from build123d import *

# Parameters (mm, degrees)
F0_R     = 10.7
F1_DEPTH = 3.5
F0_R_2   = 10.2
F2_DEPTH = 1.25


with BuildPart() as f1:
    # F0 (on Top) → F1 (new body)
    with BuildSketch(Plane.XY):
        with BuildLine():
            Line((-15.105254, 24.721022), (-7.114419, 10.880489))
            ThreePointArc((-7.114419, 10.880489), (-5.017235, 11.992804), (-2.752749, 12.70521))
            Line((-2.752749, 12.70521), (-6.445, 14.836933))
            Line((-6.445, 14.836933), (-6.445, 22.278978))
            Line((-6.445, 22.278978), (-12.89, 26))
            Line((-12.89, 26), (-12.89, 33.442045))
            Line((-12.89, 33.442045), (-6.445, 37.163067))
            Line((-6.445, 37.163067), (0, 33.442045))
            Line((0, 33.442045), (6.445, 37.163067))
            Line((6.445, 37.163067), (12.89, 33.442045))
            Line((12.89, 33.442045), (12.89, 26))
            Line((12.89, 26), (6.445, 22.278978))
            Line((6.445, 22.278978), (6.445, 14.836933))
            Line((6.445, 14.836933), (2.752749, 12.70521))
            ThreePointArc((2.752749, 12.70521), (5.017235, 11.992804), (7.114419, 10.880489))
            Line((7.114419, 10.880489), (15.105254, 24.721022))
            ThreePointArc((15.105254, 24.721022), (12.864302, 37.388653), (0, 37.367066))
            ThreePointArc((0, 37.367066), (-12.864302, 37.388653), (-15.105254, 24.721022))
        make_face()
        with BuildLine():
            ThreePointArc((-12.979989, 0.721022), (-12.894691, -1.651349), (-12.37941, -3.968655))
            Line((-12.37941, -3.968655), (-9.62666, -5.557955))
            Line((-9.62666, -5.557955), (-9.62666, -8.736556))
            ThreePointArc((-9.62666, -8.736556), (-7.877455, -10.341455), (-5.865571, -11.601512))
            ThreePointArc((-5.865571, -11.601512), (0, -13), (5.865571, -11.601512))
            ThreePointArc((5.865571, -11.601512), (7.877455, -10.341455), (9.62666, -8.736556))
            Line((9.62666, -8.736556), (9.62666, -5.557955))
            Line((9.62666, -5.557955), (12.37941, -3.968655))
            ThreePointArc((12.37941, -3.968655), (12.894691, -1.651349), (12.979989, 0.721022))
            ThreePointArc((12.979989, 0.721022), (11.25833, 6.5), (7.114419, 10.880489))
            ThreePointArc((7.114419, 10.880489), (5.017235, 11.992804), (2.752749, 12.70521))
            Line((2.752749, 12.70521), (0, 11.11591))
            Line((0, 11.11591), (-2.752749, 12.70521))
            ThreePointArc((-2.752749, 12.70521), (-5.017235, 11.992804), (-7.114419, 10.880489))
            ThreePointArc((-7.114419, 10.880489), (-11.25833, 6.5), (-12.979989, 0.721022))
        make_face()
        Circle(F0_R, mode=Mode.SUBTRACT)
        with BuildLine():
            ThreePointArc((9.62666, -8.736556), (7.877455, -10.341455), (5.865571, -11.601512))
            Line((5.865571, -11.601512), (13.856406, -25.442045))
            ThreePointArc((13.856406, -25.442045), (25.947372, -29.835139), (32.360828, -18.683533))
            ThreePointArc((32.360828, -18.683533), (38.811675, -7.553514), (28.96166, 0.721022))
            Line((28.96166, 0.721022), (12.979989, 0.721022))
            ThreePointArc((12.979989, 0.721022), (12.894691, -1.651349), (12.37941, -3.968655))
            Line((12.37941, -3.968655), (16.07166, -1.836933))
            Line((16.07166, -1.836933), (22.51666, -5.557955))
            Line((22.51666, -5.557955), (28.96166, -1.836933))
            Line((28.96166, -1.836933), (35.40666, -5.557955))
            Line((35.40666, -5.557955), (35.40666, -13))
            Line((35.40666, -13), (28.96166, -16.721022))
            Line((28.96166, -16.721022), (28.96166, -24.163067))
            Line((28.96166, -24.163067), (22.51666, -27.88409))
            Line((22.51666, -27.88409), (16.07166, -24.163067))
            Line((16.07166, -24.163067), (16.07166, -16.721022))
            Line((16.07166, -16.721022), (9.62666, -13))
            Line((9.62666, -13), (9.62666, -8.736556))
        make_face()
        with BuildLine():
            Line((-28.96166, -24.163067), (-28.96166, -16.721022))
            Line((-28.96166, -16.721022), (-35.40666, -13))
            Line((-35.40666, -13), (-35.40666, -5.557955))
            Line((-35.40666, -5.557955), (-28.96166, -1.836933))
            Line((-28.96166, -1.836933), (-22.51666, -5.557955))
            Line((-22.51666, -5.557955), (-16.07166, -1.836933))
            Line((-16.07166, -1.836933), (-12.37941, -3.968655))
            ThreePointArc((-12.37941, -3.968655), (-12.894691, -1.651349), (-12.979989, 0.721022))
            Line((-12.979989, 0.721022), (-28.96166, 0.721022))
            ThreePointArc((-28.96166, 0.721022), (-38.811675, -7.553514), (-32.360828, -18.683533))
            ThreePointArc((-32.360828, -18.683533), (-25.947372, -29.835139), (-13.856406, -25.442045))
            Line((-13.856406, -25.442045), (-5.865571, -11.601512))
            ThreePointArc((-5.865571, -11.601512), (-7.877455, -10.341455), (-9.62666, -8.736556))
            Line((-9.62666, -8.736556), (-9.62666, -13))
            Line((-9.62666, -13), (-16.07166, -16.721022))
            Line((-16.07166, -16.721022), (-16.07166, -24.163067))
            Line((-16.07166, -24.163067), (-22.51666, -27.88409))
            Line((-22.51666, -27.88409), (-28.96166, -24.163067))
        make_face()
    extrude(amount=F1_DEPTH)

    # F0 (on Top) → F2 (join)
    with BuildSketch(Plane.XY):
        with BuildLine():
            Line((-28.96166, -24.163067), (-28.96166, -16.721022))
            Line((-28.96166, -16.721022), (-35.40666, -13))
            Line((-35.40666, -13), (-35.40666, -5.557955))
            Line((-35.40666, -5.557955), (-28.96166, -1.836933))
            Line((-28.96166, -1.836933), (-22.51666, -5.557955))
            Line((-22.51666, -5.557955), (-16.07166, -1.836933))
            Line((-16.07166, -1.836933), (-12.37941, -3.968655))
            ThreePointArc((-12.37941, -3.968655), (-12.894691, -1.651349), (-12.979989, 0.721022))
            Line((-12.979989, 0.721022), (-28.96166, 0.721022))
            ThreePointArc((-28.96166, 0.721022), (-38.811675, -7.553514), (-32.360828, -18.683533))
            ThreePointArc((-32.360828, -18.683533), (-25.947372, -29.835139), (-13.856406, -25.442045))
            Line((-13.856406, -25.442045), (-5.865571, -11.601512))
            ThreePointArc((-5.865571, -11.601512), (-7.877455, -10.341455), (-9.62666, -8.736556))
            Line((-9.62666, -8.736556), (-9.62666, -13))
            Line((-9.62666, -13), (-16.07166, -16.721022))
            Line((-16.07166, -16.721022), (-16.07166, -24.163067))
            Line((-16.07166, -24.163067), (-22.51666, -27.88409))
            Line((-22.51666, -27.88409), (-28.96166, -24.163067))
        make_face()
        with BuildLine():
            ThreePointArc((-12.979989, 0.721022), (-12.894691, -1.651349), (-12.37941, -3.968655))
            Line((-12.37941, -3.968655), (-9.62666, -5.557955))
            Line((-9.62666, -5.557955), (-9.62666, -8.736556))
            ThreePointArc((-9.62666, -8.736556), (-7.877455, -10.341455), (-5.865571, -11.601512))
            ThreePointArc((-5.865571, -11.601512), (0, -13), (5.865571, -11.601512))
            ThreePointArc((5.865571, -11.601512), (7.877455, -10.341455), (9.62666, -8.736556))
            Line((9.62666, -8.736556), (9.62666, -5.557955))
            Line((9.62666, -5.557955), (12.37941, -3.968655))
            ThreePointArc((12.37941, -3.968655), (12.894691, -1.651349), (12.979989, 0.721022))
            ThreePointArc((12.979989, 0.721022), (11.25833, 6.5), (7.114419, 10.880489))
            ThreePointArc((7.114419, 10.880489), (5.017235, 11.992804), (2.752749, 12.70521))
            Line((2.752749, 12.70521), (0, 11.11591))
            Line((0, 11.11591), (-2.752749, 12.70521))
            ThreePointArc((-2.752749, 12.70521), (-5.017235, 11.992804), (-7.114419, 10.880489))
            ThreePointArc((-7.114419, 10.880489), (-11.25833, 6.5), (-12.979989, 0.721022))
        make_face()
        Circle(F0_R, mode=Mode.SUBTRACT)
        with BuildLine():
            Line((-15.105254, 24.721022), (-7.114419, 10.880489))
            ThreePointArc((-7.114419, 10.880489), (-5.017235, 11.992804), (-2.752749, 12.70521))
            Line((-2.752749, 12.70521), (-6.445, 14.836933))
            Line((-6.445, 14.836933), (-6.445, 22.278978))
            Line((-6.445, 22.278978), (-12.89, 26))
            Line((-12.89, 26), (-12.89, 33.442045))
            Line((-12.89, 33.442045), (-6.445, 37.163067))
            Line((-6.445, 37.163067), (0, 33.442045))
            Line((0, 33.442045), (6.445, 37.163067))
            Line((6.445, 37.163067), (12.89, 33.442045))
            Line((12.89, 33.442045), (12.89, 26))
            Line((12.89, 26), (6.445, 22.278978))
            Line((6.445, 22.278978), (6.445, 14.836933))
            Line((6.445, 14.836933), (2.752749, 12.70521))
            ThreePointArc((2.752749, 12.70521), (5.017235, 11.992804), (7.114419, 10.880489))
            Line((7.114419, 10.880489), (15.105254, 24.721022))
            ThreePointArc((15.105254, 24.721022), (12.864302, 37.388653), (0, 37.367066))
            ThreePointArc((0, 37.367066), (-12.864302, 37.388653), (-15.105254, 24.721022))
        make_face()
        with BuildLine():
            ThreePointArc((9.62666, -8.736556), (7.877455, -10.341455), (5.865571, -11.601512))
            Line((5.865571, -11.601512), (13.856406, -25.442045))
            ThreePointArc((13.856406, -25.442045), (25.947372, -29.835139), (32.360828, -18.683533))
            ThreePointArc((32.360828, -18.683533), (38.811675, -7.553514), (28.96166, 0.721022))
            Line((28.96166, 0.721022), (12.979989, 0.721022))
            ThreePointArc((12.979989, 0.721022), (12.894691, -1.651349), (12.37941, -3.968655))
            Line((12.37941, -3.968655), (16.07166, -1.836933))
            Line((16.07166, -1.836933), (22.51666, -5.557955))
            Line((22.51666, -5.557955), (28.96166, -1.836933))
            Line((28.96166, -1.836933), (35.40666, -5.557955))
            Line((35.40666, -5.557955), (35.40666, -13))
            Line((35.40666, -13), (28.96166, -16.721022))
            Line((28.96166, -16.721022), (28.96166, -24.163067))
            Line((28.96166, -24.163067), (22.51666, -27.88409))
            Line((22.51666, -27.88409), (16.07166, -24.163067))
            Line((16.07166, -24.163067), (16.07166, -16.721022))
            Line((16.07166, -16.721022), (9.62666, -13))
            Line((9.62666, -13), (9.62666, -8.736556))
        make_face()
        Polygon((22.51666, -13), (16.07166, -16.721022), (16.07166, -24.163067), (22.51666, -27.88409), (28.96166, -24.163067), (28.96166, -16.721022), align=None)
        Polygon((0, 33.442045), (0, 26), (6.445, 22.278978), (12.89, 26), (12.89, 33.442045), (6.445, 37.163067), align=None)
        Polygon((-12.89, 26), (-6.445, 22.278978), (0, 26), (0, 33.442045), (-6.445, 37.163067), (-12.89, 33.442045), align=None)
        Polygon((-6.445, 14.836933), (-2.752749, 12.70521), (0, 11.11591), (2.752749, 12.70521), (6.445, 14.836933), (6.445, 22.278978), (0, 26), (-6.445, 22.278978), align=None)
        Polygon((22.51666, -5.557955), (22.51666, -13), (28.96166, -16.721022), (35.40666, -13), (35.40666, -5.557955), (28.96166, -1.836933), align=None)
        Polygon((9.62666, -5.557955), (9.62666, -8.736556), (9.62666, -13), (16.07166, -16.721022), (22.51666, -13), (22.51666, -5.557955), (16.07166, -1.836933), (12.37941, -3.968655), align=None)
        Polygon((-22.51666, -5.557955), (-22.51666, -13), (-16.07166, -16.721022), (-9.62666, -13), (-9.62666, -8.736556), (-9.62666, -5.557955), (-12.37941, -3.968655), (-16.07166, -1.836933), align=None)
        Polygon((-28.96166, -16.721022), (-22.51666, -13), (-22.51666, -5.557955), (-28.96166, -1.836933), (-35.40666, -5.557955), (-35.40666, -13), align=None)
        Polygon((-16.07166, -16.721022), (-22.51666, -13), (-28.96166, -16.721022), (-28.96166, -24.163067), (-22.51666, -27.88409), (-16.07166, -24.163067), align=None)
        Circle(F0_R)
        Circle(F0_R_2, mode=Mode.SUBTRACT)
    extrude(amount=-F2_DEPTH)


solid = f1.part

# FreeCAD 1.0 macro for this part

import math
import FreeCAD as App
import Part
import Sketcher
Q = App.Units.Quantity


def add_polygon(sketch, points):
    """Adds a closed chain of lines whose ends are joined by coincident constraints."""
    first, n = sketch.GeometryCount, len(points)
    for a, b in zip(points, points[1:] + points[:1]):
        sketch.addGeometry(Part.LineSegment(App.Vector(*a, 0), App.Vector(*b, 0)), False)
    for i in range(n):
        sketch.addConstraint(Sketcher.Constraint("Coincident", first + i, 2, first + (i + 1) % n, 1))

doc = App.newDocument("Part")
body = doc.addObject("PartDesign::Body", "Body")

# Sketch on XY plane
sketch1 = body.newObject("Sketcher::SketchObject", "Sketch")
sketch1.AttachmentSupport = (doc.getObject("XY_Plane"), [""])
sketch1.MapMode = "FlatFace"
sketch1.addGeometry(Part.LineSegment(App.Vector(-15.105254, 24.721022, 0), App.Vector(-7.114419, 10.880489, 0)), False)  # 0
sketch1.addGeometry(Part.ArcOfCircle(Part.Circle(App.Vector(0, 0.000001, 0), App.Vector(0, 0, 1), 12.999999), math.radians(123.179446), math.radians(176.820562)), False)  # 1
sketch1.addGeometry(Part.LineSegment(App.Vector(-12.979989, 0.721022, 0), App.Vector(-28.96166, 0.721022, 0)), False)  # 2
sketch1.addGeometry(Part.ArcOfCircle(Part.Circle(App.Vector(-28.961661, -9.278978, 0), App.Vector(0, 0, 1), 10), math.radians(89.999992), math.radians(250.128202)), False)  # 3
sketch1.addGeometry(Part.ArcOfCircle(Part.Circle(App.Vector(-22.51666, -20.442045, 0), App.Vector(0, 0, 1), 10), math.radians(169.871806), math.radians(329.999999)), False)  # 4
sketch1.addGeometry(Part.LineSegment(App.Vector(-13.856406, -25.442045, 0), App.Vector(-5.865571, -11.601512, 0)), False)  # 5
sketch1.addGeometry(Part.ArcOfCircle(Part.Circle(App.Vector(0, 0.000001, 0), App.Vector(0, 0, 1), 13.000001), math.radians(-116.820555), math.radians(-63.179445)), False)  # 6
sketch1.addGeometry(Part.LineSegment(App.Vector(5.865571, -11.601512, 0), App.Vector(13.856406, -25.442045, 0)), False)  # 7
sketch1.addGeometry(Part.ArcOfCircle(Part.Circle(App.Vector(22.51666, -20.442045, 0), App.Vector(0, 0, 1), 10), math.radians(-149.999999), math.radians(10.128194)), False)  # 8
sketch1.addGeometry(Part.ArcOfCircle(Part.Circle(App.Vector(28.961661, -9.278978, 0), App.Vector(0, 0, 1), 10), math.radians(-70.128202), math.radians(90.000008)), False)  # 9
sketch1.addGeometry(Part.LineSegment(App.Vector(28.96166, 0.721022, 0), App.Vector(12.979989, 0.721022, 0)), False)  # 10
sketch1.addGeometry(Part.ArcOfCircle(Part.Circle(App.Vector(0, 0.000001, 0), App.Vector(0, 0, 1), 12.999999), math.radians(3.179438), math.radians(56.820554)), False)  # 11
sketch1.addGeometry(Part.LineSegment(App.Vector(7.114419, 10.880489, 0), App.Vector(15.105254, 24.721022, 0)), False)  # 12
sketch1.addGeometry(Part.ArcOfCircle(Part.Circle(App.Vector(6.445, 29.721022, 0), App.Vector(0, 0, 1), 10), math.radians(-29.999999), math.radians(130.128193)), False)  # 13
sketch1.addGeometry(Part.ArcOfCircle(Part.Circle(App.Vector(-6.445, 29.721022, 0), App.Vector(0, 0, 1), 10), math.radians(49.871807), math.radians(209.999999)), False)  # 14
add_polygon(sketch1, [(-12.37941, -3.968655), (-9.62666, -5.557955), (-9.62666, -13), (-16.07166, -16.721022), (-16.07166, -24.163067), (-22.51666, -27.88409), (-28.96166, -24.163067), (-28.96166, -16.721022), (-35.40666, -13), (-35.40666, -5.557955), (-28.96166, -1.836933), (-22.51666, -5.557955), (-16.07166, -1.836933)])  # lines 15-27
add_polygon(sketch1, [(9.62666, -5.557955), (12.37941, -3.968655), (16.07166, -1.836933), (22.51666, -5.557955), (28.96166, -1.836933), (35.40666, -5.557955), (35.40666, -13), (28.96166, -16.721022), (28.96166, -24.163067), (22.51666, -27.88409), (16.07166, -24.163067), (16.07166, -16.721022), (9.62666, -13)])  # lines 28-40
sketch1.addGeometry(Part.Circle(App.Vector(0, 0, 0), App.Vector(0, 0, 1), 10.7), False)  # 41
add_polygon(sketch1, [(-2.752749, 12.70521), (-6.445, 14.836933), (-6.445, 22.278978), (-12.89, 26), (-12.89, 33.442045), (-6.445, 37.163067), (0, 33.442045), (6.445, 37.163067), (12.89, 33.442045), (12.89, 26), (6.445, 22.278978), (6.445, 14.836933), (2.752749, 12.70521), (0, 11.11591)])  # lines 42-55
sketch1.addConstraint([
    Sketcher.Constraint("Coincident", 0, 2, 1, 1),
    Sketcher.Constraint("Coincident", 1, 2, 2, 1),
    Sketcher.Constraint("Coincident", 2, 2, 3, 1),
    Sketcher.Constraint("Coincident", 3, 2, 4, 1),
    Sketcher.Constraint("Coincident", 4, 2, 5, 1),
    Sketcher.Constraint("Coincident", 5, 2, 6, 1),
    Sketcher.Constraint("Coincident", 6, 2, 7, 1),
    Sketcher.Constraint("Coincident", 7, 2, 8, 1),
    Sketcher.Constraint("Coincident", 8, 2, 9, 1),
    Sketcher.Constraint("Coincident", 9, 2, 10, 1),
    Sketcher.Constraint("Coincident", 10, 2, 11, 1),
    Sketcher.Constraint("Coincident", 11, 2, 12, 1),
    Sketcher.Constraint("Coincident", 12, 2, 13, 1),
    Sketcher.Constraint("Coincident", 13, 2, 14, 1),
    Sketcher.Constraint("Coincident", 14, 2, 0, 1),
    Sketcher.Constraint("Horizontal", 2),
    Sketcher.Constraint("Horizontal", 10),
    Sketcher.Constraint("Vertical", 16),
    Sketcher.Constraint("Vertical", 18),
    Sketcher.Constraint("Vertical", 21),
    Sketcher.Constraint("Vertical", 23),
    Sketcher.Constraint("Vertical", 33),
    Sketcher.Constraint("Vertical", 35),
    Sketcher.Constraint("Vertical", 38),
    Sketcher.Constraint("Vertical", 40),
    Sketcher.Constraint("Vertical", 43),
    Sketcher.Constraint("Vertical", 45),
    Sketcher.Constraint("Vertical", 50),
    Sketcher.Constraint("Vertical", 52),
    Sketcher.Constraint("Coincident", 1, 3, -1, 1),
    Sketcher.Constraint("Coincident", 6, 3, -1, 1),
    Sketcher.Constraint("Coincident", 11, 3, -1, 1),
    Sketcher.Constraint("Coincident", 41, 3, -1, 1),
    Sketcher.Constraint("PointOnObject", 13, 2, -2),
    Sketcher.Constraint("PointOnObject", 47, 2, -2),
    Sketcher.Constraint("PointOnObject", 54, 2, -2),
    Sketcher.Constraint("Radius", 1, 12.999999),
    Sketcher.Constraint("Radius", 3, 10.0),
    Sketcher.Constraint("Radius", 4, 10.0),
    Sketcher.Constraint("Radius", 6, 13.000001),
    Sketcher.Constraint("Radius", 8, 10.0),
    Sketcher.Constraint("Radius", 9, 10.0),
    Sketcher.Constraint("Radius", 11, 12.999999),
    Sketcher.Constraint("Radius", 13, 10.0),
    Sketcher.Constraint("Radius", 14, 10.0),
    Sketcher.Constraint("Diameter", 41, 21.4),
    Sketcher.Constraint("DistanceY", 16, 2, -1, 1, 13.0),
    Sketcher.Constraint("DistanceY", 22, 2, -1, 1, 13.0),
    Sketcher.Constraint("DistanceY", 33, 2, -1, 1, 13.0),
    Sketcher.Constraint("DistanceY", 39, 2, -1, 1, 13.0),
    Sketcher.Constraint("DistanceY", -1, 1, 44, 2, 26.0),
    Sketcher.Constraint("DistanceY", -1, 1, 50, 2, 26.0),
    Sketcher.Constraint("DistanceX", 44, 2, -1, 1, 12.89),
    Sketcher.Constraint("DistanceX", -1, 1, 49, 2, 12.89),
    Sketcher.Constraint("DistanceX", -1, 1, 13, 3, 6.445),
    Sketcher.Constraint("DistanceX", 14, 3, -1, 1, 6.445),
    Sketcher.Constraint("DistanceX", 42, 2, -1, 1, 6.445),
    Sketcher.Constraint("DistanceX", 46, 2, -1, 1, 6.445),
    Sketcher.Constraint("DistanceX", -1, 1, 48, 2, 6.445),
    Sketcher.Constraint("DistanceX", -1, 1, 51, 2, 6.445),
    Sketcher.Constraint("Distance", 15, 3.178601),
    Sketcher.Constraint("Distance", 28, 3.178601),
    Sketcher.Constraint("Distance", 54, 3.178601),
    Sketcher.Constraint("Distance", 55, 3.178601),
    Sketcher.Constraint("DistanceX", 2, 2, 2, 1, 15.981671),
    Sketcher.Constraint("DistanceX", 10, 2, 10, 1, 15.981671),
    Sketcher.Constraint("Distance", 0, 15.981671),
    Sketcher.Constraint("Distance", 5, 15.981671),
    Sketcher.Constraint("Distance", 7, 15.981671),
    Sketcher.Constraint("Distance", 12, 15.981671),
    Sketcher.Constraint("DistanceY", 16, 2, 16, 1, 7.442045),
    Sketcher.Constraint("DistanceY", 18, 2, 18, 1, 7.442045),
    Sketcher.Constraint("DistanceY", 21, 1, 21, 2, 7.442045),
    Sketcher.Constraint("DistanceY", 23, 1, 23, 2, 7.442045),
    Sketcher.Constraint("DistanceY", 33, 2, 33, 1, 7.442045),
    Sketcher.Constraint("DistanceY", 35, 2, 35, 1, 7.442045),
    Sketcher.Constraint("DistanceY", 38, 1, 38, 2, 7.442045),
    Sketcher.Constraint("DistanceY", 40, 1, 40, 2, 7.442045),
    Sketcher.Constraint("DistanceY", 43, 1, 43, 2, 7.442045),
    Sketcher.Constraint("DistanceY", 45, 1, 45, 2, 7.442045),
    Sketcher.Constraint("DistanceY", 50, 2, 50, 1, 7.442045),
    Sketcher.Constraint("DistanceY", 52, 2, 52, 1, 7.442045),
    Sketcher.Constraint("DistanceX", 3, 3, -1, 1, 28.961661),
    Sketcher.Constraint("DistanceX", 4, 3, -1, 1, 22.51666),
    Sketcher.Constraint("DistanceX", -1, 1, 8, 3, 22.51666),
    Sketcher.Constraint("DistanceX", -1, 1, 9, 3, 28.961661),
    Sketcher.Constraint("DistanceX", 0, 2, -1, 1, 7.114419),
    Sketcher.Constraint("DistanceX", 1, 2, -1, 1, 12.979989),
    Sketcher.Constraint("DistanceX", 5, 2, -1, 1, 5.865571),
    Sketcher.Constraint("DistanceX", -1, 1, 6, 2, 5.865571),
    Sketcher.Constraint("DistanceX", -1, 1, 9, 2, 28.96166),
    Sketcher.Constraint("DistanceX", -1, 1, 11, 2, 7.114419),
    Sketcher.Constraint("DistanceY", -1, 1, 14, 2, 24.721022),
    Sketcher.Constraint("DistanceX", 15, 2, -1, 1, 9.62666),
    Sketcher.Constraint("DistanceX", 17, 2, -1, 1, 16.07166),
    Sketcher.Constraint("DistanceX", 19, 2, -1, 1, 22.51666),
    Sketcher.Constraint("DistanceY", 19, 2, -1, 1, 27.88409),
    Sketcher.Constraint("DistanceX", 20, 2, -1, 1, 28.96166),
    Sketcher.Constraint("DistanceX", 22, 2, -1, 1, 35.40666),
    Sketcher.Constraint("DistanceX", 24, 2, -1, 1, 28.96166),
    Sketcher.Constraint("DistanceX", 25, 2, -1, 1, 22.51666),
    Sketcher.Constraint("DistanceX", 26, 2, -1, 1, 16.07166),
    Sketcher.Constraint("DistanceX", 27, 2, -1, 1, 12.37941),
    Sketcher.Constraint("DistanceX", -1, 1, 28, 2, 12.37941),
    Sketcher.Constraint("DistanceX", -1, 1, 29, 2, 16.07166),
    Sketcher.Constraint("DistanceX", -1, 1, 30, 2, 22.51666),
    Sketcher.Constraint("DistanceX", -1, 1, 31, 2, 28.96166),
    Sketcher.Constraint("DistanceX", -1, 1, 32, 2, 35.40666),
    Sketcher.Constraint("DistanceX", -1, 1, 34, 2, 28.96166),
    Sketcher.Constraint("DistanceX", -1, 1, 36, 2, 22.51666),
    Sketcher.Constraint("DistanceY", 36, 2, -1, 1, 27.88409),
    Sketcher.Constraint("DistanceX", -1, 1, 37, 2, 16.07166),
    Sketcher.Constraint("DistanceX", -1, 1, 39, 2, 9.62666),
    Sketcher.Constraint("DistanceX", -1, 1, 53, 2, 2.752749),
    Sketcher.Constraint("DistanceY", -1, 1, 53, 2, 12.70521),
    Sketcher.Constraint("DistanceX", 55, 2, -1, 1, 2.752749),
    Sketcher.Constraint("Distance", 17, 7.442045),
    Sketcher.Constraint("Distance", 20, 7.442045),
    Sketcher.Constraint("Distance", 24, 7.442045),
    Sketcher.Constraint("Distance", 25, 7.442045),
    Sketcher.Constraint("Distance", 26, 7.442045),
    Sketcher.Constraint("Distance", 29, 4.263443),
    Sketcher.Constraint("Distance", 30, 7.442045),
    Sketcher.Constraint("Distance", 31, 7.442045),
    Sketcher.Constraint("Distance", 34, 7.442045),
    Sketcher.Constraint("Distance", 37, 7.442045),
    Sketcher.Constraint("Distance", 42, 4.263445),
    Sketcher.Constraint("Distance", 46, 7.442045),
    Sketcher.Constraint("Distance", 47, 7.442045),
    Sketcher.Constraint("Distance", 48, 7.442045),
    Sketcher.Constraint("Distance", 51, 7.442045),
    Sketcher.Constraint("DistanceY", 4, 3, -1, 1, 20.442045),
    Sketcher.Constraint("DistanceY", 8, 3, -1, 1, 20.442045),
])
pad1 = body.newObject("PartDesign::Pad", "Pad")
pad1.Profile = sketch1
pad1.Length = 3.5

# Sketch on XY plane
sketch2 = body.newObject("Sketcher::SketchObject", "Sketch001")
sketch2.AttachmentSupport = (doc.getObject("XY_Plane"), [""])
sketch2.MapMode = "FlatFace"
sketch2.addGeometry([
    Part.LineSegment(App.Vector(-12.979989, 0.721022, 0), App.Vector(-28.96166, 0.721022, 0)),  # 0
    Part.ArcOfCircle(Part.Circle(App.Vector(-28.961661, -9.278978, 0), App.Vector(0, 0, 1), 10), math.radians(89.999992), math.radians(250.128202)),  # 1
    Part.ArcOfCircle(Part.Circle(App.Vector(-22.51666, -20.442045, 0), App.Vector(0, 0, 1), 10), math.radians(169.871806), math.radians(329.999999)),  # 2
    Part.LineSegment(App.Vector(-13.856406, -25.442045, 0), App.Vector(-5.865571, -11.601512, 0)),  # 3
    Part.ArcOfCircle(Part.Circle(App.Vector(0, 0.000001, 0), App.Vector(0, 0, 1), 13.000001), math.radians(-116.820555), math.radians(-63.179445)),  # 4
    Part.LineSegment(App.Vector(5.865571, -11.601512, 0), App.Vector(13.856406, -25.442045, 0)),  # 5
    Part.ArcOfCircle(Part.Circle(App.Vector(22.51666, -20.442045, 0), App.Vector(0, 0, 1), 10), math.radians(-149.999999), math.radians(10.128194)),  # 6
    Part.ArcOfCircle(Part.Circle(App.Vector(28.961661, -9.278978, 0), App.Vector(0, 0, 1), 10), math.radians(-70.128202), math.radians(90.000008)),  # 7
    Part.LineSegment(App.Vector(28.96166, 0.721022, 0), App.Vector(12.979989, 0.721022, 0)),  # 8
    Part.ArcOfCircle(Part.Circle(App.Vector(0, 0.000001, 0), App.Vector(0, 0, 1), 12.999999), math.radians(3.179438), math.radians(56.820554)),  # 9
    Part.LineSegment(App.Vector(7.114419, 10.880489, 0), App.Vector(15.105254, 24.721022, 0)),  # 10
    Part.ArcOfCircle(Part.Circle(App.Vector(6.445, 29.721022, 0), App.Vector(0, 0, 1), 10), math.radians(-29.999999), math.radians(130.128193)),  # 11
    Part.ArcOfCircle(Part.Circle(App.Vector(-6.445, 29.721022, 0), App.Vector(0, 0, 1), 10), math.radians(49.871807), math.radians(209.999999)),  # 12
    Part.LineSegment(App.Vector(-15.105254, 24.721022, 0), App.Vector(-7.114419, 10.880489, 0)),  # 13
    Part.ArcOfCircle(Part.Circle(App.Vector(0, 0.000001, 0), App.Vector(0, 0, 1), 12.999999), math.radians(123.179446), math.radians(176.820562)),  # 14
    Part.Circle(App.Vector(0, 0, 0), App.Vector(0, 0, 1), 10.2),  # 15
], False)
sketch2.addConstraint([
    Sketcher.Constraint("Tangent", 0, 2, 1, 1),
    Sketcher.Constraint("Coincident", 1, 2, 2, 1),
    Sketcher.Constraint("Tangent", 2, 2, 3, 1),
    Sketcher.Constraint("Coincident", 3, 2, 4, 1),
    Sketcher.Constraint("Coincident", 4, 2, 5, 1),
    Sketcher.Constraint("Tangent", 5, 2, 6, 1),
    Sketcher.Constraint("Coincident", 6, 2, 7, 1),
    Sketcher.Constraint("Tangent", 7, 2, 8, 1),
    Sketcher.Constraint("Coincident", 8, 2, 9, 1),
    Sketcher.Constraint("Coincident", 9, 2, 10, 1),
    Sketcher.Constraint("Tangent", 10, 2, 11, 1),
    Sketcher.Constraint("Coincident", 11, 2, 12, 1),
    Sketcher.Constraint("Tangent", 12, 2, 13, 1),
    Sketcher.Constraint("Coincident", 13, 2, 14, 1),
    Sketcher.Constraint("Coincident", 14, 2, 0, 1),
    Sketcher.Constraint("Horizontal", 0),
    Sketcher.Constraint("Horizontal", 8),
    Sketcher.Constraint("Coincident", 4, 3, -1, 1),
    Sketcher.Constraint("Coincident", 9, 3, -1, 1),
    Sketcher.Constraint("Coincident", 14, 3, -1, 1),
    Sketcher.Constraint("Coincident", 15, 3, -1, 1),
    Sketcher.Constraint("Equal", 1, 2),
    Sketcher.Constraint("Equal", 2, 6),
    Sketcher.Constraint("Equal", 6, 7),
    Sketcher.Constraint("Equal", 7, 11),
    Sketcher.Constraint("Equal", 11, 12),
    Sketcher.Constraint("Equal", 9, 14),
    Sketcher.Constraint("Symmetric", 2, 3, 6, 3, -2),
    Sketcher.Constraint("Symmetric", 1, 3, 7, 3, -2),
    Sketcher.Constraint("Symmetric", 11, 3, 12, 3, -2),
    Sketcher.Constraint("Parallel", 3, 10),
    Sketcher.Constraint("Parallel", 5, 13),
    Sketcher.Constraint("Horizontal", 3, 2, 4, 2),
    Sketcher.Constraint("Equal", 5, 10),
    Sketcher.Constraint("Radius", 1, 10.0),
    Sketcher.Constraint("Radius", 4, 13.000001),
    Sketcher.Constraint("Radius", 9, 12.999999),
    Sketcher.Constraint("Diameter", 15, 20.4),
    Sketcher.Constraint("Angle", 3, Q("60.000001 deg")),
    Sketcher.Constraint("DistanceY", 7, 3, 11, 3, 39.0),
    Sketcher.Constraint("DistanceX", 12, 3, 11, 3, 12.889999),
    Sketcher.Constraint("DistanceX", 1, 3, 2, 3, 6.445001),
    Sketcher.Constraint("DistanceX", 0, 2, 0, 1, 15.981671),
    Sketcher.Constraint("Distance", 3, 15.981671),
])
pad2 = body.newObject("PartDesign::Pad", "Pad001")
pad2.Profile = sketch2
pad2.Length = 1.25
pad2.Reversed = True

doc.recompute()
